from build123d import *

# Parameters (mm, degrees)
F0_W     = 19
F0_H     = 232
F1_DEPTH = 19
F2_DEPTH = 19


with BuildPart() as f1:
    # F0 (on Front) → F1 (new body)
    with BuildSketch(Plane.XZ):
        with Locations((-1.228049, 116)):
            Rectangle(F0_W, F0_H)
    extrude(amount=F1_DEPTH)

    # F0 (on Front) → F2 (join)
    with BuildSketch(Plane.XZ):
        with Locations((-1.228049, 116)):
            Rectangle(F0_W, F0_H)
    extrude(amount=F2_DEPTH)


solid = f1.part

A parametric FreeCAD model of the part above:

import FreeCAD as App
import Part
import Sketcher

V = App.Vector

doc = App.newDocument("Part")
body = doc.addObject("PartDesign::Body", "Body")

# Sketch on XZ plane
sketch1 = body.newObject("Sketcher::SketchObject", "Sketch")
sketch1.AttachmentSupport = (doc.getObject("XZ_Plane"), [""])
sketch1.MapMode = "FlatFace"
sketch1.addGeometry([
    Part.LineSegment(V(-11, 232, 0), V(-11, 0, 0)),
    Part.LineSegment(V(-11, 0, 0), V(8, 0, 0)),
    Part.LineSegment(V(8, 0, 0), V(8, 232, 0)),
    Part.LineSegment(V(8, 232, 0), V(-11, 232, 0)),
], False)
sketch1.addConstraint([
    Sketcher.Constraint("Coincident", 0, 2, 1, 1),
    Sketcher.Constraint("Coincident", 1, 2, 2, 1),
    Sketcher.Constraint("Coincident", 2, 2, 3, 1),
    Sketcher.Constraint("Coincident", 3, 2, 0, 1),
    Sketcher.Constraint("Vertical", 0),
    Sketcher.Constraint("Horizontal", 1),
    Sketcher.Constraint("Vertical", 2),
    Sketcher.Constraint("Horizontal", 3),
    Sketcher.Constraint("PointOnObject", 0, 2, -1),
    Sketcher.Constraint("DistanceX", 1, 1, 1, 2, 19.0),
    Sketcher.Constraint("DistanceY", 0, 2, 0, 1, 232.0),
    Sketcher.Constraint("DistanceX", 0, 2, -1, 1, 10.728049),
])
pad1 = body.newObject("PartDesign::Pad", "Pad")
pad1.Profile = sketch1
pad1.Length = 19

# Sketch on XZ plane
sketch2 = body.newObject("Sketcher::SketchObject", "Sketch001")
sketch2.AttachmentSupport = (doc.getObject("XZ_Plane"), [""])
sketch2.MapMode = "FlatFace"
sketch2.addGeometry([
    Part.LineSegment(V(-11, 232, 0), V(-11, 0, 0)),
    Part.LineSegment(V(-11, 0, 0), V(8, 0, 0)),
    Part.LineSegment(V(8, 0, 0), V(8, 232, 0)),
    Part.LineSegment(V(8, 232, 0), V(-11, 232, 0)),
], False)
sketch2.addConstraint([
    Sketcher.Constraint("Coincident", 0, 2, 1, 1),
    Sketcher.Constraint("Coincident", 1, 2, 2, 1),
    Sketcher.Constraint("Coincident", 2, 2, 3, 1),
    Sketcher.Constraint("Coincident", 3, 2, 0, 1),
    Sketcher.Constraint("Vertical", 0),
    Sketcher.Constraint("Horizontal", 1),
    Sketcher.Constraint("Vertical", 2),
    Sketcher.Constraint("Horizontal", 3),
    Sketcher.Constraint("PointOnObject", 0, 2, -1),
    Sketcher.Constraint("DistanceX", 1, 1, 1, 2, 19.0),
    Sketcher.Constraint("DistanceY", 0, 2, 0, 1, 232.0),
    Sketcher.Constraint("DistanceX", 0, 2, -1, 1, 10.728049),
])
pad2 = body.newObject("PartDesign::Pad", "Pad001")
pad2.Profile = sketch2
pad2.Length = 19

doc.recompute()
